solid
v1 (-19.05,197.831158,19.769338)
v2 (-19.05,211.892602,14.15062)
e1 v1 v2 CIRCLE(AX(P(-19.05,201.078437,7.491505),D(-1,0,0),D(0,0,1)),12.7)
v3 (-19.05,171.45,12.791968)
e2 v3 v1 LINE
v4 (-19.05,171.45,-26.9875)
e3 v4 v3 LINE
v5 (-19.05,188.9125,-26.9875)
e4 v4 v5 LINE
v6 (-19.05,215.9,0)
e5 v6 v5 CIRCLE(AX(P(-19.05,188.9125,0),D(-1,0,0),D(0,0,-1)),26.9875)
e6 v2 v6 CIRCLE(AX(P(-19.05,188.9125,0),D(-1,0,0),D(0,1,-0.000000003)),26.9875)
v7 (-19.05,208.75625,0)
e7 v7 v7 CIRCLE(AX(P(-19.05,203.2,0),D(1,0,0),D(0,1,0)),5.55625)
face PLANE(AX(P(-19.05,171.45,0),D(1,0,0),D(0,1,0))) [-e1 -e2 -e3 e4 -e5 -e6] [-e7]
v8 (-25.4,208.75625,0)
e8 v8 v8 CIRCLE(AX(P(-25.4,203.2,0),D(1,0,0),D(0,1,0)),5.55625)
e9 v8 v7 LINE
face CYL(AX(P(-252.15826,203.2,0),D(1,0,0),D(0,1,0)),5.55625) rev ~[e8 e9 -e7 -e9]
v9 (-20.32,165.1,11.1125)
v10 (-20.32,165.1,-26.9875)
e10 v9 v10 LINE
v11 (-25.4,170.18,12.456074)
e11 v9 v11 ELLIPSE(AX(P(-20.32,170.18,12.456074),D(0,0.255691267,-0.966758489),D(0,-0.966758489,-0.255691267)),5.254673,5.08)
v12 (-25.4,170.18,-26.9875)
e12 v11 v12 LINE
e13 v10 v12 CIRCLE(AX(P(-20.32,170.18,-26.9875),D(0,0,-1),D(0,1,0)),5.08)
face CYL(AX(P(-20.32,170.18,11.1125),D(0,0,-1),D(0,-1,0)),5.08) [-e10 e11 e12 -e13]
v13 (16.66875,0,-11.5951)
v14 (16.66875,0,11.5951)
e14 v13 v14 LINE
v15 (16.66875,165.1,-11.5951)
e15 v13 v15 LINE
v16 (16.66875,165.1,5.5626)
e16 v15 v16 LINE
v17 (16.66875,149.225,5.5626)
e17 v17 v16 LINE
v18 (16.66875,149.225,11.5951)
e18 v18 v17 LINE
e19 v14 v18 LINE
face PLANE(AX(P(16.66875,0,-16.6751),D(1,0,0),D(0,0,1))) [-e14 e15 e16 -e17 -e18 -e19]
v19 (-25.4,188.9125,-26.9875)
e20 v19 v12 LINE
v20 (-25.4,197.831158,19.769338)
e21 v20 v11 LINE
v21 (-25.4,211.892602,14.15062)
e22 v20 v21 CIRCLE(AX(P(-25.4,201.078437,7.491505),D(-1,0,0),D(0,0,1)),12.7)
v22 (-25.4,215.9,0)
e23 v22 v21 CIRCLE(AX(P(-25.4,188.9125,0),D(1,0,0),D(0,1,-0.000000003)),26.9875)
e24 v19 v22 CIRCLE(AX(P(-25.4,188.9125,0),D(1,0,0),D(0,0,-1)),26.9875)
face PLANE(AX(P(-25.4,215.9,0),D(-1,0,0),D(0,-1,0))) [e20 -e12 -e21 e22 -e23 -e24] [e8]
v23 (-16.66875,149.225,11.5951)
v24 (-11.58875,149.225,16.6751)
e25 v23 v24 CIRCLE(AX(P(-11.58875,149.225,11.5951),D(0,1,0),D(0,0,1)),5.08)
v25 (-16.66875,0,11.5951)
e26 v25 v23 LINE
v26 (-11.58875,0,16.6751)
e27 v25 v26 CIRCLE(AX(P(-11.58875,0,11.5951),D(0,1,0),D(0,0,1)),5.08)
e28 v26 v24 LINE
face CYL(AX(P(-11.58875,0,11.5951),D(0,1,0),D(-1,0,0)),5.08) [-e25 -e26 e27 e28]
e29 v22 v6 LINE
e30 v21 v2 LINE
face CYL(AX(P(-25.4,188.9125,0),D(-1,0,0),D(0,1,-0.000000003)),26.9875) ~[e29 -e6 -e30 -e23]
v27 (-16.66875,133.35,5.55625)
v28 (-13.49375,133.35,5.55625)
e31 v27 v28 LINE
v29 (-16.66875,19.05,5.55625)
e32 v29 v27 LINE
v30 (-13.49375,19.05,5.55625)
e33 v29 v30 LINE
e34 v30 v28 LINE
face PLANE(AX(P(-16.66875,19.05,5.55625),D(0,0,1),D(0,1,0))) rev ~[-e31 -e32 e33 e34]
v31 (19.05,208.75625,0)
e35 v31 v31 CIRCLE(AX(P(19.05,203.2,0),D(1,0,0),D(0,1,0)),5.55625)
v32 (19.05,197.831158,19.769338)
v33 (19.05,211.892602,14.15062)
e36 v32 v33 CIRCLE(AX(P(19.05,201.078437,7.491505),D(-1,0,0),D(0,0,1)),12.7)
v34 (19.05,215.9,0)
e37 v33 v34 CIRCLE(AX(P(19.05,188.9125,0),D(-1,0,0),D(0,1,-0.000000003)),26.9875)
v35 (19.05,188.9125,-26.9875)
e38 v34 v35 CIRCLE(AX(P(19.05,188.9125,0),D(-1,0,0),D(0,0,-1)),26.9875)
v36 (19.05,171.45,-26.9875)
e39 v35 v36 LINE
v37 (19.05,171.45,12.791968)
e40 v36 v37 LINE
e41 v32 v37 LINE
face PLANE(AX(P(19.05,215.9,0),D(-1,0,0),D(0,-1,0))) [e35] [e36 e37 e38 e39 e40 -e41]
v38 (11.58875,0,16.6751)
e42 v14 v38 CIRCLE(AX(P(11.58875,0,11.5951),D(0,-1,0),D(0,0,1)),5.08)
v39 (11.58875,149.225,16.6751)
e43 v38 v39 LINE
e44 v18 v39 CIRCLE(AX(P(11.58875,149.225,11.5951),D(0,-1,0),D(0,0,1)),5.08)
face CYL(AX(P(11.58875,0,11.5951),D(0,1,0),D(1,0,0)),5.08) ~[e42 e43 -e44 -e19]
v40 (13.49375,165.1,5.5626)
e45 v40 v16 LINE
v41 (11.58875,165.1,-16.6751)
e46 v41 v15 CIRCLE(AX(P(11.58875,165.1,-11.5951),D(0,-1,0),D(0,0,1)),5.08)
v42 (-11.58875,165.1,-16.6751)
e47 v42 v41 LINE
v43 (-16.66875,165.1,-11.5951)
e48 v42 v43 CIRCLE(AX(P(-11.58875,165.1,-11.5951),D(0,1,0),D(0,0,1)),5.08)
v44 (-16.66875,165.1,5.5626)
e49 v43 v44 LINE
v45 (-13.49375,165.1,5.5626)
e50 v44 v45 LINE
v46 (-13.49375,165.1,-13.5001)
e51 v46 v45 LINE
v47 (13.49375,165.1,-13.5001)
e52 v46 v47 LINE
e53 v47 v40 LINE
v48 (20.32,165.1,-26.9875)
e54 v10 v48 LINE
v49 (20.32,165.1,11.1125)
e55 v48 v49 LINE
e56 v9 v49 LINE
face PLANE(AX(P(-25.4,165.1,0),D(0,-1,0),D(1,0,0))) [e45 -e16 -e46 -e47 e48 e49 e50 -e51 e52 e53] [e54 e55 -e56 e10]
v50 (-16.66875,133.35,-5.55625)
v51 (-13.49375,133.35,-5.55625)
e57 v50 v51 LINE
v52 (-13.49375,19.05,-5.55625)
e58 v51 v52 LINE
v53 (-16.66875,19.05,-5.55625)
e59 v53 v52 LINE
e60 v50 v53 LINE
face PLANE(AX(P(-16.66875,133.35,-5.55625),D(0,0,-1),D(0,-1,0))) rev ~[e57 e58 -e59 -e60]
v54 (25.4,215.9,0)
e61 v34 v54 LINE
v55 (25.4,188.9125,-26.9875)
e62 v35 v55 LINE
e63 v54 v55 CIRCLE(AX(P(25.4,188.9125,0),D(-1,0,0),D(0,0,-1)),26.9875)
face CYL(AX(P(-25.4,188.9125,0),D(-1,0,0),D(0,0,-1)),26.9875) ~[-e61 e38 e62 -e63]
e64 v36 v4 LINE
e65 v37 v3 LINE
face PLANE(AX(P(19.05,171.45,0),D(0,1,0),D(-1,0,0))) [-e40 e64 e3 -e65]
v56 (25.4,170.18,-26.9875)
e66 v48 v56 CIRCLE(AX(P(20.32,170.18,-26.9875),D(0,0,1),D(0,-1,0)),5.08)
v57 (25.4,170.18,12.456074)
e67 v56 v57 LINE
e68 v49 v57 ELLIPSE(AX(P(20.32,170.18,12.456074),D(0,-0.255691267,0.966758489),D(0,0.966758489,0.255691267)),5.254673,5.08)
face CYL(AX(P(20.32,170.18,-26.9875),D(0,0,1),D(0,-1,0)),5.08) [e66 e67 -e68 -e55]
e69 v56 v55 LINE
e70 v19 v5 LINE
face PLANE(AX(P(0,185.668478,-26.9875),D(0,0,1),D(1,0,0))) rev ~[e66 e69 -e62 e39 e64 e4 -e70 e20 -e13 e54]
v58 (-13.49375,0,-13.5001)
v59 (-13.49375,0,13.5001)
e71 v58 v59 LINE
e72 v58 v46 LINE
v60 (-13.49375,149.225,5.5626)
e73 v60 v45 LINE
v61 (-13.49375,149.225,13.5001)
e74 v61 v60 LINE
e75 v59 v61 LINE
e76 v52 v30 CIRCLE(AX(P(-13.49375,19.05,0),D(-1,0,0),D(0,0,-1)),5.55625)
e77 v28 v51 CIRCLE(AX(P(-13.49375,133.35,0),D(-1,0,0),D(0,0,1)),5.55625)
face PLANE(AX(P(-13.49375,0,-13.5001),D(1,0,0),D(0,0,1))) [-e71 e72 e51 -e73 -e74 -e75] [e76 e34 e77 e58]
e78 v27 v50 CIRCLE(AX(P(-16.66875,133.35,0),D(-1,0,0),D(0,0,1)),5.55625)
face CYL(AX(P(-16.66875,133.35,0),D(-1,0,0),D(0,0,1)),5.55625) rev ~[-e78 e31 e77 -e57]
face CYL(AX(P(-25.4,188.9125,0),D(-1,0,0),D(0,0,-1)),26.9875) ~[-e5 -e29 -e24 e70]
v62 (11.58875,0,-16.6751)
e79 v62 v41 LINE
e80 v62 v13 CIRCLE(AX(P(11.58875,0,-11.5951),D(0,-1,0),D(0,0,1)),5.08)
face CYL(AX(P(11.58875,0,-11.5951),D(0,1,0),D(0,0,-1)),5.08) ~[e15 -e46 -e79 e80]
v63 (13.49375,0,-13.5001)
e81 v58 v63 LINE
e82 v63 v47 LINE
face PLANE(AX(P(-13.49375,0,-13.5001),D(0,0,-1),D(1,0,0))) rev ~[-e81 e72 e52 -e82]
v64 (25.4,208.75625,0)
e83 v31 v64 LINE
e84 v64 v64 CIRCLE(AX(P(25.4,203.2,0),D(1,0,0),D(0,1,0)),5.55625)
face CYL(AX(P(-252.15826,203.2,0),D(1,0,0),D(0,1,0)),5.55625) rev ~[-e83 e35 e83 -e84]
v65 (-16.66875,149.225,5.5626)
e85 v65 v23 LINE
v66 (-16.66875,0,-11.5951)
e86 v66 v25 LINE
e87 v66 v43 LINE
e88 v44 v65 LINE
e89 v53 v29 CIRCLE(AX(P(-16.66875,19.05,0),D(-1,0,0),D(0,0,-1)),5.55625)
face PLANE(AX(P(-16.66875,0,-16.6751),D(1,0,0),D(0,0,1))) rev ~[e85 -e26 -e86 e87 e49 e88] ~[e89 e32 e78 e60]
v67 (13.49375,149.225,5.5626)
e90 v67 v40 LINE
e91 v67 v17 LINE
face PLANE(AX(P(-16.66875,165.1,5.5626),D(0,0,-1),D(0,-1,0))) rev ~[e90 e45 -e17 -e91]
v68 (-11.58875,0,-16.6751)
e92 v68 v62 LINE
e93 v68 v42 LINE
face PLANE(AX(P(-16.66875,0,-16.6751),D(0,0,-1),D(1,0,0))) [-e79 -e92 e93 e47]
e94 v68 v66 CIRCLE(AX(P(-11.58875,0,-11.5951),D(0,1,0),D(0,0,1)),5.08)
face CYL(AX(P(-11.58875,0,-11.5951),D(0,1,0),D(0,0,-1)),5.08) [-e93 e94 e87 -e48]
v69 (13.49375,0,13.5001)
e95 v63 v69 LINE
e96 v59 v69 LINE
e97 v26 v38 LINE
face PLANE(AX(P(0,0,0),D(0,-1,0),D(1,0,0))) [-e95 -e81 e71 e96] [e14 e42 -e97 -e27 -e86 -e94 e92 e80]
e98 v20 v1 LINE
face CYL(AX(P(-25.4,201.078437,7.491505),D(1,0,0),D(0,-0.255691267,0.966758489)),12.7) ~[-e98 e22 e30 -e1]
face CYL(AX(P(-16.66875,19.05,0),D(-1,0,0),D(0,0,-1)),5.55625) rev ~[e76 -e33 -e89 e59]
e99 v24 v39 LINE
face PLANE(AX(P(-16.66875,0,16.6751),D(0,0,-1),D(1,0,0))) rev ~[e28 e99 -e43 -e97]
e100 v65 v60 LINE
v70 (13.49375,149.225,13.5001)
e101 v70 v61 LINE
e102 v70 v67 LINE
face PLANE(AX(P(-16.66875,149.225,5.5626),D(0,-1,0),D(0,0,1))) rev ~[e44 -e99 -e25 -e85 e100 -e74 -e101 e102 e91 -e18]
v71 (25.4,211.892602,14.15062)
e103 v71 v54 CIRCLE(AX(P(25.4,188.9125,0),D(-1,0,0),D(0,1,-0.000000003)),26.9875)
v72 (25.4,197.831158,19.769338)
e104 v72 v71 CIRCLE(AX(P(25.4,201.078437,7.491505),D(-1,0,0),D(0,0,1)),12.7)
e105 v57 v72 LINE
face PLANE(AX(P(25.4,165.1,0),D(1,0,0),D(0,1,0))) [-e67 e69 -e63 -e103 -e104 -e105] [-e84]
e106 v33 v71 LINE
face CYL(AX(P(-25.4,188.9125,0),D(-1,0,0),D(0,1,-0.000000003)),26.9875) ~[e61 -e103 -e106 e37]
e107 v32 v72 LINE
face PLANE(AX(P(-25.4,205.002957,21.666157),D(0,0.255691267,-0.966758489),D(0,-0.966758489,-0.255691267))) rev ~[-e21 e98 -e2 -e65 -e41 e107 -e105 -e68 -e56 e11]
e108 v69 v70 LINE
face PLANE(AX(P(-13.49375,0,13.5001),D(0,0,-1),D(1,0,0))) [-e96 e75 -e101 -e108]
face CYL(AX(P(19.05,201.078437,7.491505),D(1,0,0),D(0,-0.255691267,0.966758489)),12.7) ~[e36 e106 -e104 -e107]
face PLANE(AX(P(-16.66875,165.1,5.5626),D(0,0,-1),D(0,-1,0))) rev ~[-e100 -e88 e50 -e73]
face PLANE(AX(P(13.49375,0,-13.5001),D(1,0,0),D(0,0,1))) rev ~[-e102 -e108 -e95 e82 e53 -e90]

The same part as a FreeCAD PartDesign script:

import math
import FreeCAD as App
import Part
import Sketcher

V = App.Vector
Q = App.Units.Quantity


def edges_at(feature, points):
    """Names of the edges that pass closest to the given points."""
    edges = feature.Shape.Edges
    near = lambda p: min(range(len(edges)), key=lambda i: edges[i].distToShape(Part.Vertex(*p))[0])
    return sorted({f"Edge{near(p) + 1}" for p in points})

doc = App.newDocument("Part")
body = doc.addObject("PartDesign::Body", "Body")

# Sketch on XZ plane
sketch1 = body.newObject("Sketcher::SketchObject", "Sketch")
sketch1.AttachmentSupport = (doc.getObject("XZ_Plane"), [""])
sketch1.MapMode = "FlatFace"
sketch1.addGeometry([
    Part.LineSegment(V(-16.66875, 16.6751, 0), V(-16.66875, -16.6751, 0)),  # 0
    Part.LineSegment(V(-16.66875, -16.6751, 0), V(16.66875, -16.6751, 0)),  # 1
    Part.LineSegment(V(16.66875, -16.6751, 0), V(16.66875, 16.6751, 0)),  # 2
    Part.LineSegment(V(16.66875, 16.6751, 0), V(-16.66875, 16.6751, 0)),  # 3
    Part.LineSegment(V(13.49375, -13.5001, 0), V(-13.49375, -13.5001, 0)),  # 4
    Part.LineSegment(V(-13.49375, -13.5001, 0), V(-13.49375, 13.5001, 0)),  # 5
    Part.LineSegment(V(-13.49375, 13.5001, 0), V(13.49375, 13.5001, 0)),  # 6
    Part.LineSegment(V(13.49375, 13.5001, 0), V(13.49375, -13.5001, 0)),  # 7
], False)
sketch1.addConstraint([
    Sketcher.Constraint("Coincident", 0, 2, 1, 1),
    Sketcher.Constraint("Coincident", 1, 2, 2, 1),
    Sketcher.Constraint("Coincident", 2, 2, 3, 1),
    Sketcher.Constraint("Coincident", 3, 2, 0, 1),
    Sketcher.Constraint("Coincident", 4, 2, 5, 1),
    Sketcher.Constraint("Coincident", 5, 2, 6, 1),
    Sketcher.Constraint("Coincident", 6, 2, 7, 1),
    Sketcher.Constraint("Coincident", 7, 2, 4, 1),
    Sketcher.Constraint("Vertical", 0),
    Sketcher.Constraint("Horizontal", 1),
    Sketcher.Constraint("Vertical", 2),
    Sketcher.Constraint("Horizontal", 3),
    Sketcher.Constraint("Horizontal", 4),
    Sketcher.Constraint("Vertical", 5),
    Sketcher.Constraint("Horizontal", 6),
    Sketcher.Constraint("Vertical", 7),
    Sketcher.Constraint("Symmetric", 0, 2, 2, 2, -1, 1),
    Sketcher.Constraint("Symmetric", 4, 2, 6, 2, -1, 1),
    Sketcher.Constraint("DistanceX", 1, 1, 1, 2, Q("1.3125 in")),
    Sketcher.Constraint("DistanceX", 4, 2, 4, 1, Q("1.0625 in")),
    Sketcher.Constraint("DistanceY", 0, 2, 0, 1, Q("1.313 in")),
    Sketcher.Constraint("DistanceY", 5, 1, 5, 2, Q("1.063 in")),
])
pad1 = body.newObject("PartDesign::Pad", "Pad")
pad1.Profile = sketch1
pad1.Length = Q("6.5 in")
pad1.Reversed = True

# Sketch on YZ plane
sketch2 = body.newObject("Sketcher::SketchObject", "Sketch001")
sketch2.AttachmentSupport = (doc.getObject("YZ_Plane"), [""])
sketch2.MapMode = "FlatFace"
sketch2.AttachmentOffset = App.Placement(V(0, 0, -0.65625 * 25.4), App.Rotation())
sketch2.addGeometry([
    Part.LineSegment(V(165.1, 16.6751, 0), V(165.1, 5.5626, 0)),
    Part.LineSegment(V(165.1, 5.5626, 0), V(149.225, 5.5626, 0)),
    Part.LineSegment(V(149.225, 5.5626, 0), V(149.225, 16.6751, 0)),
    Part.LineSegment(V(149.225, 16.6751, 0), V(165.1, 16.6751, 0)),
], False)
sketch2.addConstraint([
    Sketcher.Constraint("Coincident", 0, 2, 1, 1),
    Sketcher.Constraint("Coincident", 1, 2, 2, 1),
    Sketcher.Constraint("Coincident", 2, 2, 3, 1),
    Sketcher.Constraint("Coincident", 3, 2, 0, 1),
    Sketcher.Constraint("Vertical", 0),
    Sketcher.Constraint("Horizontal", 1),
    Sketcher.Constraint("Vertical", 2),
    Sketcher.Constraint("Horizontal", 3),
    Sketcher.Constraint("DistanceX", -1, 1, 0, 2, Q("6.5 in")),
    Sketcher.Constraint("DistanceX", 1, 2, 1, 1, Q("0.625 in")),
    Sketcher.Constraint("DistanceY", 0, 2, 0, 1, Q("0.4375 in")),
    Sketcher.Constraint("DistanceY", -1, 1, 0, 2, Q("0.219 in")),
])
pocket1 = body.newObject("PartDesign::Pocket", "Pocket")
pocket1.Profile = sketch2
pocket1.Type = "ThroughAll"
pocket1.Reversed = True

# Sketch on XY plane
sketch3 = body.newObject("Sketcher::SketchObject", "Sketch002")
sketch3.AttachmentSupport = (doc.getObject("XY_Plane"), [""])
sketch3.MapMode = "FlatFace"
sketch3.addGeometry([
    Part.LineSegment(V(-25.4, 165.1, 0), V(25.4, 165.1, 0)),  # 0
    Part.LineSegment(V(25.4, 165.1, 0), V(25.4, 215.9, 0)),  # 1
    Part.LineSegment(V(25.4, 215.9, 0), V(19.05, 215.9, 0)),  # 2
    Part.LineSegment(V(19.05, 215.9, 0), V(19.05, 171.45, 0)),  # 3
    Part.LineSegment(V(19.05, 171.45, 0), V(-19.05, 171.45, 0)),  # 4
    Part.LineSegment(V(-19.05, 171.45, 0), V(-19.05, 215.9, 0)),  # 5
    Part.LineSegment(V(-19.05, 215.9, 0), V(-25.4, 215.9, 0)),  # 6
    Part.LineSegment(V(-25.4, 215.9, 0), V(-25.4, 165.1, 0)),  # 7
], False)
sketch3.addConstraint([
    Sketcher.Constraint("Coincident", 0, 2, 1, 1),
    Sketcher.Constraint("Coincident", 1, 2, 2, 1),
    Sketcher.Constraint("Coincident", 2, 2, 3, 1),
    Sketcher.Constraint("Coincident", 3, 2, 4, 1),
    Sketcher.Constraint("Coincident", 4, 2, 5, 1),
    Sketcher.Constraint("Coincident", 5, 2, 6, 1),
    Sketcher.Constraint("Coincident", 6, 2, 7, 1),
    Sketcher.Constraint("Coincident", 7, 2, 0, 1),
    Sketcher.Constraint("Horizontal", 0),
    Sketcher.Constraint("Vertical", 1),
    Sketcher.Constraint("Horizontal", 2),
    Sketcher.Constraint("Vertical", 3),
    Sketcher.Constraint("Horizontal", 4),
    Sketcher.Constraint("Vertical", 5),
    Sketcher.Constraint("Horizontal", 6),
    Sketcher.Constraint("Vertical", 7),
    Sketcher.Constraint("Symmetric", 2, 2, 5, 2, -2),
    Sketcher.Constraint("Equal", 2, 6),
    Sketcher.Constraint("Equal", 0, 1),
    Sketcher.Constraint("DistanceX", 0, 1, 0, 2, Q("2 in")),
    Sketcher.Constraint("DistanceX", 4, 2, 4, 1, Q("1.5 in")),
    Sketcher.Constraint("DistanceY", 3, 2, 3, 1, Q("1.75 in")),
    Sketcher.Constraint("DistanceY", -1, 1, 0, 2, Q("6.5 in")),
])
pad2 = body.newObject("PartDesign::Pad", "Pad001")
pad2.Profile = sketch3
pad2.Length = Q("2.125 in")
pad2.Midplane = True

# Sketch on YZ plane
sketch4 = body.newObject("Sketcher::SketchObject", "Sketch003")
sketch4.AttachmentSupport = (doc.getObject("YZ_Plane"), [""])
sketch4.MapMode = "FlatFace"
sketch4.AttachmentOffset = App.Placement(V(0, 0, -1 * 25.4), App.Rotation())
sketch4.addGeometry([
    Part.ArcOfCircle(Part.Circle(V(188.9125, 0, 0), V(0, 0, 1), 26.9875), math.radians(0), math.radians(53.400429)),  # 0
    Part.LineSegment(V(205.002957, 21.666157, 0), V(165.1, 11.1125, 0)),  # 1
    Part.LineSegment(V(165.1, 11.1125, 0), V(165.1, 26.9875, 0)),  # 2
    Part.LineSegment(V(165.1, 26.9875, 0), V(215.9, 26.9875, 0)),  # 3
    Part.LineSegment(V(215.9, 26.9875, 0), V(215.9, 0, 0)),  # 4
    Part.ArcOfCircle(Part.Circle(V(188.9125, 0, 0), V(0, 0, 1), 26.9875), math.radians(-90), math.radians(0)),  # 5
    Part.LineSegment(V(215.9, 0, 0), V(215.9, -26.9875, 0)),  # 6
    Part.LineSegment(V(215.9, -26.9875, 0), V(188.9125, -26.9875, 0)),  # 7
], False)
sketch4.addConstraint([
    Sketcher.Constraint("Coincident", 0, 2, 1, 1),
    Sketcher.Constraint("Coincident", 1, 2, 2, 1),
    Sketcher.Constraint("Coincident", 2, 2, 3, 1),
    Sketcher.Constraint("Coincident", 3, 2, 4, 1),
    Sketcher.Constraint("Tangent", 4, 2, 0, 1),
    Sketcher.Constraint("Tangent", 5, 2, 6, 1),
    Sketcher.Constraint("Coincident", 6, 2, 7, 1),
    Sketcher.Constraint("Tangent", 7, 2, 5, 1),
    Sketcher.Constraint("Vertical", 2),
    Sketcher.Constraint("Horizontal", 3),
    Sketcher.Constraint("Vertical", 4),
    Sketcher.Constraint("Vertical", 6),
    Sketcher.Constraint("Horizontal", 7),
    Sketcher.Constraint("Coincident", 5, 3, 0, 3),
    Sketcher.Constraint("Equal", 0, 5),
    Sketcher.Constraint("PointOnObject", 0, 3, -1),
    Sketcher.Constraint("Equal", 7, 4),
    Sketcher.Constraint("DistanceX", 3, 1, 3, 2, Q("2 in")),
    Sketcher.Constraint("Radius", 0, Q("1.0625 in")),
    Sketcher.Constraint("DistanceX", -1, 1, 1, 2, Q("6.5 in")),
    Sketcher.Constraint("DistanceY", 2, 1, 2, 2, Q("0.625 in")),
    Sketcher.Constraint("Distance", 1, Q("1.625 in")),
])
pocket2 = body.newObject("PartDesign::Pocket", "Pocket001")
pocket2.Profile = sketch4
pocket2.Type = "ThroughAll"
pocket2.Reversed = True
doc.recompute()

fillet = body.newObject("PartDesign::Fillet", "Fillet")
fillet.Base = (pocket2, edges_at(pocket2, [
    (-25.4, 165.1, -7.938),
    (25.4, 165.1, -7.938),
    (-16.669, 74.612, 16.675),
    (16.669, 74.612, 16.675),
    (-16.669, 82.55, -16.675),
    (16.669, 82.55, -16.675),
]))
fillet.Radius = Q("0.2 in")
doc.recompute()

fillet2 = body.newObject("PartDesign::Fillet", "Fillet001")
fillet2.Base = (fillet, edges_at(fillet, [(22.225, 205.003, 21.666), (-22.225, 205.003, 21.666)]))
fillet2.Radius = Q("0.5 in")

# Sketch on YZ plane
sketch5 = body.newObject("Sketcher::SketchObject", "Sketch004")
sketch5.AttachmentSupport = (doc.getObject("YZ_Plane"), [""])
sketch5.MapMode = "FlatFace"
sketch5.AttachmentOffset = App.Placement(V(0, 0, -1 * 25.4), App.Rotation())
sketch5.addGeometry(Part.Circle(V(203.2, 0, 0), V(0, 0, 1), 5.55625), False)
sketch5.addConstraint([
    Sketcher.Constraint("PointOnObject", 0, 3, -1),
    Sketcher.Constraint("Diameter", 0, Q("0.4375 in")),
    Sketcher.Constraint("DistanceX", -1, 1, 0, 3, Q("8 in")),
])
doc.recompute()
hole = body.newObject("PartDesign::Hole", "Hole")
hole.Profile = sketch5
hole.ThreadType = "None"
hole.Diameter = Q("0.4375 in")
hole.DepthType = "ThroughAll"
hole.Reversed = True

# Sketch on YZ plane
sketch6 = body.newObject("Sketcher::SketchObject", "Sketch005")
sketch6.AttachmentSupport = (doc.getObject("YZ_Plane"), [""])
sketch6.MapMode = "FlatFace"
sketch6.AttachmentOffset = App.Placement(V(0, 0, -0.65625 * 25.4), App.Rotation())
sketch6.addGeometry([
    Part.LineSegment(V(19.05, 5.55625, 0), V(133.35, 5.55625, 0)),
    Part.ArcOfCircle(Part.Circle(V(133.35, 0, 0), V(0, 0, 1), 5.55625), math.radians(-90), math.radians(90)),
    Part.LineSegment(V(133.35, -5.55625, 0), V(19.05, -5.55625, 0)),
    Part.ArcOfCircle(Part.Circle(V(19.05, 0, 0), V(0, 0, 1), 5.55625), math.radians(90), math.radians(270)),
], False)
sketch6.addConstraint([
    Sketcher.Constraint("Tangent", 0, 2, 1, 2),
    Sketcher.Constraint("Tangent", 1, 1, 2, 1),
    Sketcher.Constraint("Tangent", 2, 2, 3, 2),
    Sketcher.Constraint("Tangent", 3, 1, 0, 1),
    Sketcher.Constraint("Horizontal", 0),
    Sketcher.Constraint("Horizontal", 2),
    Sketcher.Constraint("PointOnObject", 1, 3, -1),
    Sketcher.Constraint("DistanceX", 0, 1, 0, 2, Q("4.5 in")),
    Sketcher.Constraint("Radius", 1, Q("0.21875 in")),
    Sketcher.Constraint("DistanceX", -1, 1, 1, 3, Q("5.25 in")),
])
pocket3 = body.newObject("PartDesign::Pocket", "Pocket002")
pocket3.Profile = sketch6
pocket3.Length = Q("0.125 in")
pocket3.Reversed = True

doc.recompute()
